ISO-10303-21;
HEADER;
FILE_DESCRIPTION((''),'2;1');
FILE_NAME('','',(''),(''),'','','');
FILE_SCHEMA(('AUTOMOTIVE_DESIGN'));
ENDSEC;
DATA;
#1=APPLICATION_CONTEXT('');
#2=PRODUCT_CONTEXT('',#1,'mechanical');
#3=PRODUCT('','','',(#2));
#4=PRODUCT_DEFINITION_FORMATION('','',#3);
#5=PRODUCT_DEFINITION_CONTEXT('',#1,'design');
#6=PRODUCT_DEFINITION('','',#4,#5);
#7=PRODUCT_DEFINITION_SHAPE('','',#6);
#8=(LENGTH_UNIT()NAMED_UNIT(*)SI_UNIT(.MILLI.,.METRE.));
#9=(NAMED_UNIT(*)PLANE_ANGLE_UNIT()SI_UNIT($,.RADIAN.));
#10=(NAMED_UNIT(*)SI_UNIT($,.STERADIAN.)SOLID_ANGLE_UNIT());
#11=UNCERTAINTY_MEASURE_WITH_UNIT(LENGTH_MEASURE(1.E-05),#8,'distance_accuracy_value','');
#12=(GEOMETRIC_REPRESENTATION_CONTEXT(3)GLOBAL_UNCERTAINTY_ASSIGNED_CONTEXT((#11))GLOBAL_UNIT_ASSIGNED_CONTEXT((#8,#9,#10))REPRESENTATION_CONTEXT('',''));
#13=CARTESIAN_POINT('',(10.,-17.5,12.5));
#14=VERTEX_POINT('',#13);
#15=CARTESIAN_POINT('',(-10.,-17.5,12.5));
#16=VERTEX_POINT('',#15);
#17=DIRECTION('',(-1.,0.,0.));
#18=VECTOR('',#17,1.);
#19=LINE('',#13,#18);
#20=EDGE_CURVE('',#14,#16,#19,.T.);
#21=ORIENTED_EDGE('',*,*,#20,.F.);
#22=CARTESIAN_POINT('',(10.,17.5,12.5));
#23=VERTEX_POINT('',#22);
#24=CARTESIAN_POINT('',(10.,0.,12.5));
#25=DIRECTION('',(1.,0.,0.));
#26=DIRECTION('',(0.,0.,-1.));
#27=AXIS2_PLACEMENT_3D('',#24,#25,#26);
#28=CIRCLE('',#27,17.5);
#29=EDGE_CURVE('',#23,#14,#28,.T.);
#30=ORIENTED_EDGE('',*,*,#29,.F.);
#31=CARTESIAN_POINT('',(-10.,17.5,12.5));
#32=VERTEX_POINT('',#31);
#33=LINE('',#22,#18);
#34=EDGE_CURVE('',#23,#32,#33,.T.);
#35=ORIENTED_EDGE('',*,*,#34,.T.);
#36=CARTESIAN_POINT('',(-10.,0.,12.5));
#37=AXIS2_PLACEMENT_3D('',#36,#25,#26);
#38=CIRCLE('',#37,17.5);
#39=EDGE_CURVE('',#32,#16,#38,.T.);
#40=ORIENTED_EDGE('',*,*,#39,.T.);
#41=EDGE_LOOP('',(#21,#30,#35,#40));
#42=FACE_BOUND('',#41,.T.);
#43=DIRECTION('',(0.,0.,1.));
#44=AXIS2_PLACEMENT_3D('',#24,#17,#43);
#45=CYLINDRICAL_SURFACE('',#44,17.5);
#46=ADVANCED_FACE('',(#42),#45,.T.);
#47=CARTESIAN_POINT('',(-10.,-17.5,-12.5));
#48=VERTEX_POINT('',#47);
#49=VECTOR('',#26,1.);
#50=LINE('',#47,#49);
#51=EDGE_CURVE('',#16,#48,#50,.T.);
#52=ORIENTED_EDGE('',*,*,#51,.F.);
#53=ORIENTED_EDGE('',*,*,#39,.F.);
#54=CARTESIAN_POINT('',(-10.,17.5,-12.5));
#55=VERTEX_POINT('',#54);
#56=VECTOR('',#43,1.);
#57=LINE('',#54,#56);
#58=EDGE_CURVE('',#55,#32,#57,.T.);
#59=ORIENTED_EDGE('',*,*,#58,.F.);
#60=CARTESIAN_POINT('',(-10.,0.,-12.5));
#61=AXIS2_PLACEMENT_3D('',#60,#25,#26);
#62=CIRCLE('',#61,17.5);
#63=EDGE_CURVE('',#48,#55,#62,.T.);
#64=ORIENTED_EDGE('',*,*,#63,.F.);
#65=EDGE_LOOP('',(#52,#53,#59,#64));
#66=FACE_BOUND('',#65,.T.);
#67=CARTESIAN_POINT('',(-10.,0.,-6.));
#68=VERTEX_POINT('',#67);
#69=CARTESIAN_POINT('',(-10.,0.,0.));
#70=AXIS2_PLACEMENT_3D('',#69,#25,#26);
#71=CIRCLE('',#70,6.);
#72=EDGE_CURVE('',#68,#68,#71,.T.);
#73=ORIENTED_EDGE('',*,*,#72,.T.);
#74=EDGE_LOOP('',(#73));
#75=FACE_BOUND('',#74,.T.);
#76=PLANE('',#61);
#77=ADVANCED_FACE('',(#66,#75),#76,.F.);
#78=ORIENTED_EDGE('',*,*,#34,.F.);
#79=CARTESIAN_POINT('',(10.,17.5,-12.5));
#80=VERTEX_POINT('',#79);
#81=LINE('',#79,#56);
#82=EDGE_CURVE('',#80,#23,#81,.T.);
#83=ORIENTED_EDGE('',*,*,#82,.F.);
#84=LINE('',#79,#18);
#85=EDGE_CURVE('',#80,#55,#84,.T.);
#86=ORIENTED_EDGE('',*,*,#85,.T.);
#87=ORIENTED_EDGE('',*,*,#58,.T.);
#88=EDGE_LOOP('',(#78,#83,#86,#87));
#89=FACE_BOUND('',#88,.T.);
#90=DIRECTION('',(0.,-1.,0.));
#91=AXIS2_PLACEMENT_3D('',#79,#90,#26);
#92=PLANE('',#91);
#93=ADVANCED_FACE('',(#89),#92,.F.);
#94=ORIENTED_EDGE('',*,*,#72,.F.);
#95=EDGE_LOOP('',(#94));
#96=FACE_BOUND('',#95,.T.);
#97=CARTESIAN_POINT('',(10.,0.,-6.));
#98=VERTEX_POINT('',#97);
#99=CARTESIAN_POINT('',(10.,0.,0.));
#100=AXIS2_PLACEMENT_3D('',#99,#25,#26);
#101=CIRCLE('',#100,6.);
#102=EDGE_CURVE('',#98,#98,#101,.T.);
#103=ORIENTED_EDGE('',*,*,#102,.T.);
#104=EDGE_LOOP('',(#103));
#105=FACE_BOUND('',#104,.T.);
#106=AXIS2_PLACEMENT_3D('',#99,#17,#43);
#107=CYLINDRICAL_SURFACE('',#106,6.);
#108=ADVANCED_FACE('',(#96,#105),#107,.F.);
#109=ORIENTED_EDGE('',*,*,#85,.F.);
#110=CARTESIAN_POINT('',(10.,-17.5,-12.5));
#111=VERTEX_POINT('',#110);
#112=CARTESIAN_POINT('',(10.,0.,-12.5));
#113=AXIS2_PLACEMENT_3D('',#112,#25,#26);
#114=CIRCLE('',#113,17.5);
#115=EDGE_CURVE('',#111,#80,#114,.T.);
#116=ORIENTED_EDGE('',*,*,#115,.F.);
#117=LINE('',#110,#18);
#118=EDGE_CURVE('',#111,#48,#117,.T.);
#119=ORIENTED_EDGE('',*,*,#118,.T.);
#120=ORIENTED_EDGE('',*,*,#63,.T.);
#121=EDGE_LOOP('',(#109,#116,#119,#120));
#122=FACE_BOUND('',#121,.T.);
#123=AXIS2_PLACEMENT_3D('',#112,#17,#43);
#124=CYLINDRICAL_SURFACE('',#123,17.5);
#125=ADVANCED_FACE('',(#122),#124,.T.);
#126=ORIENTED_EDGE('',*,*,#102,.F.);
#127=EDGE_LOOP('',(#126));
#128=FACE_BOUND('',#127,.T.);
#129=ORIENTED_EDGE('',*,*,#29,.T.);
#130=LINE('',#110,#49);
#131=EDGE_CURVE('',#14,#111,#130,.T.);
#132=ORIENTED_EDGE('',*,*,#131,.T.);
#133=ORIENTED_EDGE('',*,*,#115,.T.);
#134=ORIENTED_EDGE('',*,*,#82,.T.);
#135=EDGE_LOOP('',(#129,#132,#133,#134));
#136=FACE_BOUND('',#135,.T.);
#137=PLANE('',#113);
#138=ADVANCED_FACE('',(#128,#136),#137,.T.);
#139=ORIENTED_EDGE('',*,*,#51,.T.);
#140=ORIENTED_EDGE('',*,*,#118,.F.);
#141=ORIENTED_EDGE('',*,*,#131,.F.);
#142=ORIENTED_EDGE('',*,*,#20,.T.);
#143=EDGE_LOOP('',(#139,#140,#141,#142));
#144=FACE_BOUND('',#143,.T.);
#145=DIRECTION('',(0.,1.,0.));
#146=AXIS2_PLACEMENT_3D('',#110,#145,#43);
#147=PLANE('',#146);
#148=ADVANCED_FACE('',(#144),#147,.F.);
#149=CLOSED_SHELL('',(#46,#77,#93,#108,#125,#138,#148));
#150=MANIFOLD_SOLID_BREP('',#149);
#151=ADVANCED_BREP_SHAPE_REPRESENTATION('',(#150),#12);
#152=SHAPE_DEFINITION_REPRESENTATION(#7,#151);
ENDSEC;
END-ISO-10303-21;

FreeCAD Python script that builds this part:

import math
import FreeCAD as App
import Part
import Sketcher

V = App.Vector
Q = App.Units.Quantity

doc = App.newDocument("Part")
body = doc.addObject("PartDesign::Body", "Body")

# Sketch on YZ plane
sketch1 = body.newObject("Sketcher::SketchObject", "Sketch")
sketch1.AttachmentSupport = (doc.getObject("YZ_Plane"), [""])
sketch1.MapMode = "FlatFace"
sketch1.addGeometry([
    Part.LineSegment(V(-17.5, 12.5, 0), V(-17.5, -12.5, 0)),  # 0
    Part.ArcOfCircle(Part.Circle(V(0, -12.5, 0), V(0, 0, 1), 17.5), math.radians(180), math.radians(360)),  # 1
    Part.LineSegment(V(17.5, -12.5, 0), V(17.5, 12.5, 0)),  # 2
    Part.ArcOfCircle(Part.Circle(V(0, 12.5, 0), V(0, 0, 1), 17.5), math.radians(0), math.radians(180)),  # 3
    Part.Circle(V(0, 0, 0), V(0, 0, 1), 6),  # 4
], False)
sketch1.addConstraint([
    Sketcher.Constraint("Tangent", 0, 2, 1, 1),
    Sketcher.Constraint("Tangent", 1, 2, 2, 1),
    Sketcher.Constraint("Tangent", 2, 2, 3, 1),
    Sketcher.Constraint("Tangent", 3, 2, 0, 1),
    Sketcher.Constraint("Vertical", 0),
    Sketcher.Constraint("Vertical", 2),
    Sketcher.Constraint("Coincident", 4, 3, -1, 1),
    Sketcher.Constraint("Symmetric", 1, 3, 3, 3, -1, 1),
    Sketcher.Constraint("Diameter", 4, Q("12 mm")),
    Sketcher.Constraint("Radius", 1, Q("17.5 mm")),
    Sketcher.Constraint("DistanceY", 0, 2, 0, 1, Q("25 mm")),
])
pad1 = body.newObject("PartDesign::Pad", "Pad")
pad1.Profile = sketch1
pad1.Length = 20
pad1.Midplane = True

doc.recompute()
